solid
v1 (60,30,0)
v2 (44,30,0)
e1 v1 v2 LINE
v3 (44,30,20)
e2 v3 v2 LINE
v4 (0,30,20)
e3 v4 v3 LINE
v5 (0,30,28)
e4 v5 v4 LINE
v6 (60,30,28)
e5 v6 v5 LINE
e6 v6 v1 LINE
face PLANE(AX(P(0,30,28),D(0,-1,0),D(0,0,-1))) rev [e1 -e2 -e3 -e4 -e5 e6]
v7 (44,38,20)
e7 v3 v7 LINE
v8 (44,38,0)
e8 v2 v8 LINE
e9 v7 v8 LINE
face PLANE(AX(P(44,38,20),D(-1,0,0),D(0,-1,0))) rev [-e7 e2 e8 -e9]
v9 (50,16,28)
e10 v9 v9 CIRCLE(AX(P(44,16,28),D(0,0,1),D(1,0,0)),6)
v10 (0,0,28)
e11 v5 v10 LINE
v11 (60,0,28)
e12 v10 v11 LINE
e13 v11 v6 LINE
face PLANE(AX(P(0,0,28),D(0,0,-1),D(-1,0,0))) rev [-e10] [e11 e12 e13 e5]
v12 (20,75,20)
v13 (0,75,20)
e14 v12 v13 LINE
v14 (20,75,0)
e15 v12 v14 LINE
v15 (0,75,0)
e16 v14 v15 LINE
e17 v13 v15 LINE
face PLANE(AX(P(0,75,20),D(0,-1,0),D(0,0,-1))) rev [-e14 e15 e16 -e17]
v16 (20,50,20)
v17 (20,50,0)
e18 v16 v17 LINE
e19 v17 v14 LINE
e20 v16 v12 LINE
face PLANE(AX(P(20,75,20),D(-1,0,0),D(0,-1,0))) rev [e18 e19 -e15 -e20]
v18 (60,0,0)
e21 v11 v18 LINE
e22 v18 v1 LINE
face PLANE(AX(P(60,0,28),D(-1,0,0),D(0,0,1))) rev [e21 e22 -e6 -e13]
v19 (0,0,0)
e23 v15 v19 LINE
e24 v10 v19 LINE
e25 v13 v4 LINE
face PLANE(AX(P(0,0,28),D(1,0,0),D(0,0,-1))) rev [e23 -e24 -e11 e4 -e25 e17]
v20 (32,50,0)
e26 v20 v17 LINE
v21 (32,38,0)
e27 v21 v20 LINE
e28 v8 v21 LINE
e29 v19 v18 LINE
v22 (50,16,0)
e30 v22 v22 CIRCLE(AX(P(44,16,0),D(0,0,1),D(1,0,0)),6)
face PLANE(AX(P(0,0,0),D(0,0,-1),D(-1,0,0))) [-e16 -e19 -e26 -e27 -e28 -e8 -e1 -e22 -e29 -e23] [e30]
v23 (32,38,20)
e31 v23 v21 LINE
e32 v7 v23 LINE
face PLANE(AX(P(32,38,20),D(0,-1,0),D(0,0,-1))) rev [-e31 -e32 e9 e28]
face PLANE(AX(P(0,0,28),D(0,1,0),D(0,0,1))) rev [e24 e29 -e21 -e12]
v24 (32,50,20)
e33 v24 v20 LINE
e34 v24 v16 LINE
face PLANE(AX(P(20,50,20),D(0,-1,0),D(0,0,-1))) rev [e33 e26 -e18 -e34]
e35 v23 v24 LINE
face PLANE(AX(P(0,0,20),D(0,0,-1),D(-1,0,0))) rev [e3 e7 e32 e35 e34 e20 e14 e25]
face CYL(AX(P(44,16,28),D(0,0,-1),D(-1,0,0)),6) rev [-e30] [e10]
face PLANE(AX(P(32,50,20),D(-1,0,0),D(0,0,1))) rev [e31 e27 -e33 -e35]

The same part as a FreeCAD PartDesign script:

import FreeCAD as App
import Part
import Sketcher

V = App.Vector

doc = App.newDocument("Part")
body = doc.addObject("PartDesign::Body", "Body")

# Sketch on XY plane
sketch1 = body.newObject("Sketcher::SketchObject", "Sketch")
sketch1.AttachmentSupport = (doc.getObject("XY_Plane"), [""])
sketch1.MapMode = "FlatFace"
sketch1.addGeometry(Part.LineSegment(V(0, 30, 0), V(0, 0, 0)), False)
sketch1.addGeometry(Part.LineSegment(V(0, 0, 0), V(60, 0, 0)), False)
sketch1.addGeometry(Part.LineSegment(V(60, 0, 0), V(60, 30, 0)), False)
sketch1.addGeometry(Part.LineSegment(V(60, 30, 0), V(0, 30, 0)), False)
sketch1.addGeometry(Part.Circle(V(44, 16, 0), V(0, 0, 1), 6), False)
sketch1.addConstraint(Sketcher.Constraint("Coincident", 0, 2, 1, 1))
sketch1.addConstraint(Sketcher.Constraint("Coincident", 1, 2, 2, 1))
sketch1.addConstraint(Sketcher.Constraint("Coincident", 2, 2, 3, 1))
sketch1.addConstraint(Sketcher.Constraint("Coincident", 3, 2, 0, 1))
sketch1.addConstraint(Sketcher.Constraint("Vertical", 0))
sketch1.addConstraint(Sketcher.Constraint("Horizontal", 1))
sketch1.addConstraint(Sketcher.Constraint("Vertical", 2))
sketch1.addConstraint(Sketcher.Constraint("Horizontal", 3))
sketch1.addConstraint(Sketcher.Constraint("Coincident", 0, 2, -1, 1))
sketch1.addConstraint(Sketcher.Constraint("Diameter", 4, 12.0))
sketch1.addConstraint(Sketcher.Constraint("DistanceX", 1, 1, 1, 2, 60.0))
sketch1.addConstraint(Sketcher.Constraint("DistanceY", 0, 2, 0, 1, 30.0))
sketch1.addConstraint(Sketcher.Constraint("DistanceX", -1, 1, 4, 3, 44.0))
sketch1.addConstraint(Sketcher.Constraint("DistanceY", -1, 1, 4, 3, 16.0))
pad1 = body.newObject("PartDesign::Pad", "Pad")
pad1.Profile = sketch1
pad1.Length = 28

# Sketch on XY plane
sketch2 = body.newObject("Sketcher::SketchObject", "Sketch001")
sketch2.AttachmentSupport = (doc.getObject("XY_Plane"), [""])
sketch2.MapMode = "FlatFace"
sketch2.addGeometry(Part.LineSegment(V(0, 75, 0), V(0, 30, 0)), False)
sketch2.addGeometry(Part.LineSegment(V(0, 30, 0), V(44, 30, 0)), False)
sketch2.addGeometry(Part.LineSegment(V(44, 30, 0), V(44, 38, 0)), False)
sketch2.addGeometry(Part.LineSegment(V(44, 38, 0), V(32, 38, 0)), False)
sketch2.addGeometry(Part.LineSegment(V(32, 38, 0), V(32, 50, 0)), False)
sketch2.addGeometry(Part.LineSegment(V(32, 50, 0), V(20, 50, 0)), False)
sketch2.addGeometry(Part.LineSegment(V(20, 50, 0), V(20, 75, 0)), False)
sketch2.addGeometry(Part.LineSegment(V(20, 75, 0), V(0, 75, 0)), False)
sketch2.addConstraint(Sketcher.Constraint("Coincident", 0, 2, 1, 1))
sketch2.addConstraint(Sketcher.Constraint("Coincident", 1, 2, 2, 1))
sketch2.addConstraint(Sketcher.Constraint("Coincident", 2, 2, 3, 1))
sketch2.addConstraint(Sketcher.Constraint("Coincident", 3, 2, 4, 1))
sketch2.addConstraint(Sketcher.Constraint("Coincident", 4, 2, 5, 1))
sketch2.addConstraint(Sketcher.Constraint("Coincident", 5, 2, 6, 1))
sketch2.addConstraint(Sketcher.Constraint("Coincident", 6, 2, 7, 1))
sketch2.addConstraint(Sketcher.Constraint("Coincident", 7, 2, 0, 1))
sketch2.addConstraint(Sketcher.Constraint("Vertical", 0))
sketch2.addConstraint(Sketcher.Constraint("Horizontal", 1))
sketch2.addConstraint(Sketcher.Constraint("Vertical", 2))
sketch2.addConstraint(Sketcher.Constraint("Horizontal", 3))
sketch2.addConstraint(Sketcher.Constraint("Vertical", 4))
sketch2.addConstraint(Sketcher.Constraint("Horizontal", 5))
sketch2.addConstraint(Sketcher.Constraint("Vertical", 6))
sketch2.addConstraint(Sketcher.Constraint("Horizontal", 7))
sketch2.addConstraint(Sketcher.Constraint("PointOnObject", 0, 2, -2))
sketch2.addConstraint(Sketcher.Constraint("Equal", 3, 5))
sketch2.addConstraint(Sketcher.Constraint("Equal", 5, 4))
sketch2.addConstraint(Sketcher.Constraint("DistanceX", 1, 1, 1, 2, 44.0))
sketch2.addConstraint(Sketcher.Constraint("DistanceX", 3, 2, 3, 1, 12.0))
sketch2.addConstraint(Sketcher.Constraint("DistanceY", 0, 2, 0, 1, 45.0))
sketch2.addConstraint(Sketcher.Constraint("DistanceY", 2, 1, 2, 2, 8.0))
sketch2.addConstraint(Sketcher.Constraint("DistanceY", -1, 1, 0, 2, 30.0))
pad2 = body.newObject("PartDesign::Pad", "Pad001")
pad2.Profile = sketch2
pad2.Length = 20

doc.recompute()
